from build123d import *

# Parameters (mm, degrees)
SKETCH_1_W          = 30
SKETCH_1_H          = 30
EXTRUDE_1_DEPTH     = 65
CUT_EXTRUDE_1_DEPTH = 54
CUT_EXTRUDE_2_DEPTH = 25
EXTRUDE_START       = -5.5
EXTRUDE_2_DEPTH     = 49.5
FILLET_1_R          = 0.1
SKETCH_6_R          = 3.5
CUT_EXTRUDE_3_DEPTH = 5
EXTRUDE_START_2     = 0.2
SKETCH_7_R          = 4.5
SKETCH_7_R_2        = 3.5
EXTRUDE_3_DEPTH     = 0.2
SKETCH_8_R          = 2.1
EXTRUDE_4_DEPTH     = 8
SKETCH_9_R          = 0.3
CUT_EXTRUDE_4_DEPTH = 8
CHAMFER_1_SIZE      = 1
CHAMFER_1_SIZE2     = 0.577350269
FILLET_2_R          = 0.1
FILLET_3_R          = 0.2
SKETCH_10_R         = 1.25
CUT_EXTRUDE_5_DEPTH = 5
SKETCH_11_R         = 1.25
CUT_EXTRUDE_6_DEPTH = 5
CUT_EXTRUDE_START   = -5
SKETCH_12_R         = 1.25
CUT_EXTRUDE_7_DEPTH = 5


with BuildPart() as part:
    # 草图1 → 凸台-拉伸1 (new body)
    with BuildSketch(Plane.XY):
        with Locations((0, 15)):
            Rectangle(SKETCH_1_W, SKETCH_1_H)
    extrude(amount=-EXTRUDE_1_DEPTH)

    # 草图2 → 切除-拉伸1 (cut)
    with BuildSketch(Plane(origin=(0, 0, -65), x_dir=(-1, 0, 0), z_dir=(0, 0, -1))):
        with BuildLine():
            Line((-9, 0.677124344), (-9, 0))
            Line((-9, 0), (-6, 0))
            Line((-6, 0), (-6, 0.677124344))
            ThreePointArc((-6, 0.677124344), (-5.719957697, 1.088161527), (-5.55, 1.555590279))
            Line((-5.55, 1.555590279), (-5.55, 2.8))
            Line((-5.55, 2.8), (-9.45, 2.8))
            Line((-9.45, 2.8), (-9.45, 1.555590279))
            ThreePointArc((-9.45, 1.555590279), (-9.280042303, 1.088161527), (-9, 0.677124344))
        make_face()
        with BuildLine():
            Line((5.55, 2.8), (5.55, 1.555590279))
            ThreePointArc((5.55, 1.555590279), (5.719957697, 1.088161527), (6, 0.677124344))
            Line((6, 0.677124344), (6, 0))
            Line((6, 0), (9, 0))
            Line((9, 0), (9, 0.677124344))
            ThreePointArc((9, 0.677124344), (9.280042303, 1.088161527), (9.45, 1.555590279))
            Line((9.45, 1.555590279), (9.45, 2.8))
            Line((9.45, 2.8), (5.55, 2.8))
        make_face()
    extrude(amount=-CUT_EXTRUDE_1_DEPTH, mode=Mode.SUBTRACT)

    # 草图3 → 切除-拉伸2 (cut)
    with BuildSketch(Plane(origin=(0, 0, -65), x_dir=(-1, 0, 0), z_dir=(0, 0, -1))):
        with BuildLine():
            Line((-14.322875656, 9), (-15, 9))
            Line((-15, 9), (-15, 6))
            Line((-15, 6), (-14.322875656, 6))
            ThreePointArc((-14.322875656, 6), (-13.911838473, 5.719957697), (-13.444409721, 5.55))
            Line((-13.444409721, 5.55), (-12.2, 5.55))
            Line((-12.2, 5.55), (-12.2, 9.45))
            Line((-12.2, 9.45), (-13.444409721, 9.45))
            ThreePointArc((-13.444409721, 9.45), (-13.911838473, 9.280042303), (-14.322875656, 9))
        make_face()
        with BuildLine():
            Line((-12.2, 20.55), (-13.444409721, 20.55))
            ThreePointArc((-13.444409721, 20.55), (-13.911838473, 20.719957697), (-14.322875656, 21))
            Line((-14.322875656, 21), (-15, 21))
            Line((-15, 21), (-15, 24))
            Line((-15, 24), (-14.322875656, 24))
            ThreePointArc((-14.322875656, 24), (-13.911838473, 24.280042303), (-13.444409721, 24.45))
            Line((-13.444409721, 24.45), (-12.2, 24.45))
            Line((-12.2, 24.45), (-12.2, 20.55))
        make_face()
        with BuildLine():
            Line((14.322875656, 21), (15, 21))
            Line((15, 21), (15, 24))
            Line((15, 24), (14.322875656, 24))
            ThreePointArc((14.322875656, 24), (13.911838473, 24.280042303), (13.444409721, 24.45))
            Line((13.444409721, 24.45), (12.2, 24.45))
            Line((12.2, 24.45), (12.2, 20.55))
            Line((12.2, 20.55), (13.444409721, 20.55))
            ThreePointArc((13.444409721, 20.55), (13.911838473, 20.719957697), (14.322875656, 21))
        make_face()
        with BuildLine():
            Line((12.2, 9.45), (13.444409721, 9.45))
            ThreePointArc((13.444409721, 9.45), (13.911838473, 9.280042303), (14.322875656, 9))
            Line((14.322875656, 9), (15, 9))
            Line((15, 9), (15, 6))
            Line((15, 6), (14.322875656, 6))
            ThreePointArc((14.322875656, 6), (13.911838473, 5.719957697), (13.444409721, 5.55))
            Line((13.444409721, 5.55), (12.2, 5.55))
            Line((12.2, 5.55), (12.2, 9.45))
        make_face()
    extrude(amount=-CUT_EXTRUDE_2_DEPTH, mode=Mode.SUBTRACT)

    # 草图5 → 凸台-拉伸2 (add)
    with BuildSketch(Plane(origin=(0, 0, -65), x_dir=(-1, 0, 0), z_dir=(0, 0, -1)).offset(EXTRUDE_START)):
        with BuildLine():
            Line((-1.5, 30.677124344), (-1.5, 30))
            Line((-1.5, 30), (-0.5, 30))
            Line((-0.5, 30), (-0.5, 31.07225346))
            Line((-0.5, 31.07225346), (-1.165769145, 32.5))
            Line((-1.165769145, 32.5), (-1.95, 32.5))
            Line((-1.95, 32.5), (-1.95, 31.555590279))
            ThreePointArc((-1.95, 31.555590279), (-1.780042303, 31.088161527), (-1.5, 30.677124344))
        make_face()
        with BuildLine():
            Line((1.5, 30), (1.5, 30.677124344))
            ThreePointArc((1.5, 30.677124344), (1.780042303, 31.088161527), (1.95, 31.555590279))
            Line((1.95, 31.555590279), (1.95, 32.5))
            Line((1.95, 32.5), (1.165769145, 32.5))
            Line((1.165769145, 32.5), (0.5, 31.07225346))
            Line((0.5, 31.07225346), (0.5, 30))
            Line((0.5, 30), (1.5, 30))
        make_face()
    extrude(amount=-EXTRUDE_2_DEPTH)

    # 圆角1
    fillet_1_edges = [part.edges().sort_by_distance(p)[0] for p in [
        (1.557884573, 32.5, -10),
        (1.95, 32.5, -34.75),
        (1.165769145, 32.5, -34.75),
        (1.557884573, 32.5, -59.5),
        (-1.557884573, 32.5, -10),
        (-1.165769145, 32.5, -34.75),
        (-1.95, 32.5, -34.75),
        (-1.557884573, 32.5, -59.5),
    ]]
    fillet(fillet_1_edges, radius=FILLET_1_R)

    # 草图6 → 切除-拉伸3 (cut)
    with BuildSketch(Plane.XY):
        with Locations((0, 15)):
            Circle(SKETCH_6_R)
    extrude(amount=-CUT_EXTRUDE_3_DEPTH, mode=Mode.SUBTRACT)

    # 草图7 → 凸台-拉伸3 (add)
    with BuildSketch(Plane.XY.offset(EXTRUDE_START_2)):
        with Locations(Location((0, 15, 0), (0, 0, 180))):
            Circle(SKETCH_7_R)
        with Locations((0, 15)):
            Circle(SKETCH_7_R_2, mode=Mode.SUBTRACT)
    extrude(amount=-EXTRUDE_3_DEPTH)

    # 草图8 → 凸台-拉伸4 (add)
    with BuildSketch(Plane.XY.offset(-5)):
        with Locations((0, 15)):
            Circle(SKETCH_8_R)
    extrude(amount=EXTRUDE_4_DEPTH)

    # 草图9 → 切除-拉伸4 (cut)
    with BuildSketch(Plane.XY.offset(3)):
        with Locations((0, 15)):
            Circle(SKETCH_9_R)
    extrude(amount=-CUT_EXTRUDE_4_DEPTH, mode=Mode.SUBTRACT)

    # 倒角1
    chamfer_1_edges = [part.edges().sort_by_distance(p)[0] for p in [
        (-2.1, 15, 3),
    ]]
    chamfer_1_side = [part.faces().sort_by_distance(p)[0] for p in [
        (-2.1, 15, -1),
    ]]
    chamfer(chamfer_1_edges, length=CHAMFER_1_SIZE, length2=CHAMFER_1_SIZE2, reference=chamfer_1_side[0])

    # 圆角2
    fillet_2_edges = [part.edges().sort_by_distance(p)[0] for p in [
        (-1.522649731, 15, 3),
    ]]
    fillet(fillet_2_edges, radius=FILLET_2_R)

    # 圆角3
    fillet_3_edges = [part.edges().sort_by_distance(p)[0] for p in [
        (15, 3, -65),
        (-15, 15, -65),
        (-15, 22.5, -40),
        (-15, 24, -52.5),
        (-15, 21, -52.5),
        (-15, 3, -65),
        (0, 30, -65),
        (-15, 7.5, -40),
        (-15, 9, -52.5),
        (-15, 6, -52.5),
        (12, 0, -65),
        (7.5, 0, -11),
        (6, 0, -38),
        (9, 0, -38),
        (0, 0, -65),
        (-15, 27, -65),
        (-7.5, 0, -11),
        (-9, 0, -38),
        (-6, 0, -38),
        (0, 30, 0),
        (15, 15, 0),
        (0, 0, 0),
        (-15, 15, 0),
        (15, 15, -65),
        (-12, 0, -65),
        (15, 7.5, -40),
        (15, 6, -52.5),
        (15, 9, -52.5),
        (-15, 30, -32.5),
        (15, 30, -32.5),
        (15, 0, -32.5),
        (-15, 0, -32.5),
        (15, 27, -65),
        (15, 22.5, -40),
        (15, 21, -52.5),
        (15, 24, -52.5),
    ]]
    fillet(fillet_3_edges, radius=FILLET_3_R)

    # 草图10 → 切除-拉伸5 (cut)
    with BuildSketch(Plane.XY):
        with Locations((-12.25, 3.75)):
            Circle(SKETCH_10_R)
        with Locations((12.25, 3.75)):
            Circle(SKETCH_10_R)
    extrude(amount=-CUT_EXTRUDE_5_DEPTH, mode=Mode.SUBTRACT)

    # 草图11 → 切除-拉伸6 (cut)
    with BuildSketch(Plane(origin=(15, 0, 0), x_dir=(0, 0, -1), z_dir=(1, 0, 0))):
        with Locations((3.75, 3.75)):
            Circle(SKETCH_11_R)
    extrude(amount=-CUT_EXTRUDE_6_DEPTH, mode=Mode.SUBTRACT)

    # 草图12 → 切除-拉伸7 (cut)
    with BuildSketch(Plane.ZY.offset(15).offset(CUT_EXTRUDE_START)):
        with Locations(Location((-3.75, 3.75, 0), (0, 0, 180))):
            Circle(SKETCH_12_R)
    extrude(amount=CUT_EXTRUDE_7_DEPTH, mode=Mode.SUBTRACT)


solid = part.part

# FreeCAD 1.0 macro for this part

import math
import FreeCAD as App
import Part
import Sketcher
Q = App.Units.Quantity


def edges_at(feature, points):
    """Names of the edges that pass closest to the given points."""
    edges = feature.Shape.Edges
    near = lambda p: min(range(len(edges)), key=lambda i: edges[i].distToShape(Part.Vertex(*p))[0])
    return sorted({f"Edge{near(p) + 1}" for p in points})


def add_polygon(sketch, points):
    """Adds a closed chain of lines whose ends are joined by coincident constraints."""
    first, n = sketch.GeometryCount, len(points)
    for a, b in zip(points, points[1:] + points[:1]):
        sketch.addGeometry(Part.LineSegment(App.Vector(*a, 0), App.Vector(*b, 0)), False)
    for i in range(n):
        sketch.addConstraint(Sketcher.Constraint("Coincident", first + i, 2, first + (i + 1) % n, 1))

doc = App.newDocument("Part")
body = doc.addObject("PartDesign::Body", "Body")

# Sketch on XY plane
sketch1 = doc.addObject("Sketcher::SketchObject", "Sketch")
body.addObject(sketch1)
sketch1.AttachmentSupport = (doc.XY_Plane, [""])
sketch1.MapMode = "FlatFace"
add_polygon(sketch1, [(-15, 30), (-15, 0), (15, 0), (15, 30)])  # lines 0-3
sketch1.addConstraint([
    Sketcher.Constraint("Vertical", 0),
    Sketcher.Constraint("Horizontal", 1),
    Sketcher.Constraint("Vertical", 2),
    Sketcher.Constraint("Horizontal", 3),
    Sketcher.Constraint("Symmetric", 0, 2, 1, 2, -1, 1),
    Sketcher.Constraint("Equal", 3, 0),
    Sketcher.Constraint("DistanceX", 1, 1, 1, 2, 30.0),
])
pad1 = doc.addObject("PartDesign::Pad", "Pad")
body.addObject(pad1)
pad1.Profile = sketch1
pad1.Length = 65
pad1.Reversed = True

# Sketch on XY plane
sketch2 = doc.addObject("Sketcher::SketchObject", "Sketch001")
body.addObject(sketch2)
sketch2.AttachmentSupport = (doc.XY_Plane, [""])
sketch2.MapMode = "FlatFace"
sketch2.AttachmentOffset = App.Placement(App.Vector(0, 0, -65), App.Rotation())
sketch2.addGeometry([
    Part.LineSegment(App.Vector(9, 0.677124, 0), App.Vector(9, 0, 0)),  # 0
    Part.LineSegment(App.Vector(9, 0, 0), App.Vector(6, 0, 0)),  # 1
    Part.LineSegment(App.Vector(6, 0, 0), App.Vector(6, 0.677124, 0)),  # 2
    Part.ArcOfCircle(Part.Circle(App.Vector(7.5, 2, 0), App.Vector(0, 0, 1), 2), math.radians(-167.161432), math.radians(-138.590378)),  # 3
    Part.LineSegment(App.Vector(5.55, 1.55559, 0), App.Vector(5.55, 2.8, 0)),  # 4
    Part.LineSegment(App.Vector(5.55, 2.8, 0), App.Vector(9.45, 2.8, 0)),  # 5
    Part.LineSegment(App.Vector(9.45, 2.8, 0), App.Vector(9.45, 1.55559, 0)),  # 6
    Part.ArcOfCircle(Part.Circle(App.Vector(7.5, 2, 0), App.Vector(0, 0, 1), 2), math.radians(-41.409622), math.radians(-12.838568)),  # 7
    Part.LineSegment(App.Vector(-5.55, 2.8, 0), App.Vector(-5.55, 1.55559, 0)),  # 8
    Part.ArcOfCircle(Part.Circle(App.Vector(-7.5, 2, 0), App.Vector(0, 0, 1), 2), math.radians(-41.409622), math.radians(-12.838568)),  # 9
    Part.LineSegment(App.Vector(-6, 0.677124, 0), App.Vector(-6, 0, 0)),  # 10
    Part.LineSegment(App.Vector(-6, 0, 0), App.Vector(-9, 0, 0)),  # 11
    Part.LineSegment(App.Vector(-9, 0, 0), App.Vector(-9, 0.677124, 0)),  # 12
    Part.ArcOfCircle(Part.Circle(App.Vector(-7.5, 2, 0), App.Vector(0, 0, 1), 2), math.radians(-167.161432), math.radians(-138.590378)),  # 13
    Part.LineSegment(App.Vector(-9.45, 1.55559, 0), App.Vector(-9.45, 2.8, 0)),  # 14
    Part.LineSegment(App.Vector(-9.45, 2.8, 0), App.Vector(-5.55, 2.8, 0)),  # 15
], False)
sketch2.addConstraint([
    Sketcher.Constraint("Coincident", 0, 2, 1, 1),
    Sketcher.Constraint("Coincident", 1, 2, 2, 1),
    Sketcher.Constraint("Coincident", 2, 2, 3, 2),
    Sketcher.Constraint("Coincident", 3, 1, 4, 1),
    Sketcher.Constraint("Coincident", 4, 2, 5, 1),
    Sketcher.Constraint("Coincident", 5, 2, 6, 1),
    Sketcher.Constraint("Coincident", 6, 2, 7, 2),
    Sketcher.Constraint("Coincident", 7, 1, 0, 1),
    Sketcher.Constraint("Coincident", 8, 2, 9, 2),
    Sketcher.Constraint("Coincident", 9, 1, 10, 1),
    Sketcher.Constraint("Coincident", 10, 2, 11, 1),
    Sketcher.Constraint("Coincident", 11, 2, 12, 1),
    Sketcher.Constraint("Coincident", 12, 2, 13, 2),
    Sketcher.Constraint("Coincident", 13, 1, 14, 1),
    Sketcher.Constraint("Coincident", 14, 2, 15, 1),
    Sketcher.Constraint("Coincident", 15, 2, 8, 1),
    Sketcher.Constraint("Vertical", 0),
    Sketcher.Constraint("Horizontal", 1),
    Sketcher.Constraint("Vertical", 2),
    Sketcher.Constraint("Vertical", 4),
    Sketcher.Constraint("Horizontal", 5),
    Sketcher.Constraint("Vertical", 6),
    Sketcher.Constraint("Vertical", 8),
    Sketcher.Constraint("Vertical", 10),
    Sketcher.Constraint("Horizontal", 11),
    Sketcher.Constraint("Vertical", 12),
    Sketcher.Constraint("Vertical", 14),
    Sketcher.Constraint("Horizontal", 15),
    Sketcher.Constraint("Coincident", 7, 3, 3, 3),
    Sketcher.Constraint("Coincident", 13, 3, 9, 3),
    Sketcher.Constraint("Equal", 3, 7),
    Sketcher.Constraint("Equal", 7, 9),
    Sketcher.Constraint("Equal", 9, 13),
    Sketcher.Constraint("Symmetric", 1, 2, 10, 2, -1, 1),
    Sketcher.Constraint("Symmetric", 3, 3, 9, 3, -2),
    Sketcher.Constraint("Symmetric", 0, 2, 11, 2, -2),
    Sketcher.Constraint("Symmetric", 5, 2, 14, 2, -2),
    Sketcher.Constraint("Horizontal", 3, 1, 6, 2),
    Sketcher.Constraint("Horizontal", 2, 2, 7, 1),
    Sketcher.Constraint("Horizontal", 6, 2, 8, 2),
    Sketcher.Constraint("Radius", 3, 2.0),
    Sketcher.Constraint("DistanceX", 1, 2, 1, 1, 3.0),
    Sketcher.Constraint("DistanceX", 5, 1, 5, 2, 3.9),
    Sketcher.Constraint("DistanceY", -1, 1, 3, 3, 2.0),
    Sketcher.Constraint("DistanceX", -1, 1, 0, 2, 9.0),
    Sketcher.Constraint("DistanceY", -1, 1, 4, 2, 2.8),
])
pocket1 = doc.addObject("PartDesign::Pocket", "Pocket")
body.addObject(pocket1)
pocket1.Profile = sketch2
pocket1.Length = 54
pocket1.Reversed = True

# Sketch on XY plane
sketch3 = doc.addObject("Sketcher::SketchObject", "Sketch002")
body.addObject(sketch3)
sketch3.AttachmentSupport = (doc.XY_Plane, [""])
sketch3.MapMode = "FlatFace"
sketch3.AttachmentOffset = App.Placement(App.Vector(0, 0, -65), App.Rotation())
sketch3.addGeometry([
    Part.LineSegment(App.Vector(14.322876, 9, 0), App.Vector(15, 9, 0)),  # 0
    Part.LineSegment(App.Vector(15, 9, 0), App.Vector(15, 6, 0)),  # 1
    Part.LineSegment(App.Vector(15, 6, 0), App.Vector(14.322876, 6, 0)),  # 2
    Part.ArcOfCircle(Part.Circle(App.Vector(13, 7.5, 0), App.Vector(0, 0, 1), 2), math.radians(-77.161432), math.radians(-48.590378)),  # 3
    Part.LineSegment(App.Vector(13.44441, 5.55, 0), App.Vector(12.2, 5.55, 0)),  # 4
    Part.LineSegment(App.Vector(12.2, 5.55, 0), App.Vector(12.2, 9.45, 0)),  # 5
    Part.LineSegment(App.Vector(12.2, 9.45, 0), App.Vector(13.44441, 9.45, 0)),  # 6
    Part.ArcOfCircle(Part.Circle(App.Vector(13, 7.5, 0), App.Vector(0, 0, 1), 2), math.radians(48.590378), math.radians(77.161432)),  # 7
    Part.LineSegment(App.Vector(13.44441, 20.55, 0), App.Vector(12.2, 20.55, 0)),  # 8
    Part.LineSegment(App.Vector(12.2, 20.55, 0), App.Vector(12.2, 24.45, 0)),  # 9
    Part.LineSegment(App.Vector(12.2, 24.45, 0), App.Vector(13.44441, 24.45, 0)),  # 10
    Part.ArcOfCircle(Part.Circle(App.Vector(13, 22.5, 0), App.Vector(0, 0, 1), 2), math.radians(48.590378), math.radians(77.161432)),  # 11
    Part.LineSegment(App.Vector(14.322876, 24, 0), App.Vector(15, 24, 0)),  # 12
    Part.LineSegment(App.Vector(15, 24, 0), App.Vector(15, 21, 0)),  # 13
    Part.LineSegment(App.Vector(15, 21, 0), App.Vector(14.322876, 21, 0)),  # 14
    Part.ArcOfCircle(Part.Circle(App.Vector(13, 22.5, 0), App.Vector(0, 0, 1), 2), math.radians(-77.161432), math.radians(-48.590378)),  # 15
    Part.LineSegment(App.Vector(-14.322876, 21, 0), App.Vector(-15, 21, 0)),  # 16
    Part.LineSegment(App.Vector(-15, 21, 0), App.Vector(-15, 24, 0)),  # 17
    Part.LineSegment(App.Vector(-15, 24, 0), App.Vector(-14.322876, 24, 0)),  # 18
    Part.ArcOfCircle(Part.Circle(App.Vector(-13, 22.5, 0), App.Vector(0, 0, 1), 2), math.radians(102.838568), math.radians(131.409622)),  # 19
    Part.LineSegment(App.Vector(-13.44441, 24.45, 0), App.Vector(-12.2, 24.45, 0)),  # 20
    Part.LineSegment(App.Vector(-12.2, 24.45, 0), App.Vector(-12.2, 20.55, 0)),  # 21
    Part.LineSegment(App.Vector(-12.2, 20.55, 0), App.Vector(-13.44441, 20.55, 0)),  # 22
    Part.ArcOfCircle(Part.Circle(App.Vector(-13, 22.5, 0), App.Vector(0, 0, 1), 2), math.radians(-131.409622), math.radians(-102.838568)),  # 23
    Part.LineSegment(App.Vector(-13.44441, 9.45, 0), App.Vector(-12.2, 9.45, 0)),  # 24
    Part.LineSegment(App.Vector(-12.2, 9.45, 0), App.Vector(-12.2, 5.55, 0)),  # 25
    Part.LineSegment(App.Vector(-12.2, 5.55, 0), App.Vector(-13.44441, 5.55, 0)),  # 26
    Part.ArcOfCircle(Part.Circle(App.Vector(-13, 7.5, 0), App.Vector(0, 0, 1), 2), math.radians(-131.409622), math.radians(-102.838568)),  # 27
    Part.LineSegment(App.Vector(-14.322876, 6, 0), App.Vector(-15, 6, 0)),  # 28
    Part.LineSegment(App.Vector(-15, 6, 0), App.Vector(-15, 9, 0)),  # 29
    Part.LineSegment(App.Vector(-15, 9, 0), App.Vector(-14.322876, 9, 0)),  # 30
    Part.ArcOfCircle(Part.Circle(App.Vector(-13, 7.5, 0), App.Vector(0, 0, 1), 2), math.radians(102.838568), math.radians(131.409622)),  # 31
], False)
sketch3.addConstraint([
    Sketcher.Constraint("Coincident", 0, 2, 1, 1),
    Sketcher.Constraint("Coincident", 1, 2, 2, 1),
    Sketcher.Constraint("Coincident", 2, 2, 3, 2),
    Sketcher.Constraint("Coincident", 3, 1, 4, 1),
    Sketcher.Constraint("Coincident", 4, 2, 5, 1),
    Sketcher.Constraint("Coincident", 5, 2, 6, 1),
    Sketcher.Constraint("Coincident", 6, 2, 7, 2),
    Sketcher.Constraint("Coincident", 7, 1, 0, 1),
    Sketcher.Constraint("Coincident", 8, 2, 9, 1),
    Sketcher.Constraint("Coincident", 9, 2, 10, 1),
    Sketcher.Constraint("Coincident", 10, 2, 11, 2),
    Sketcher.Constraint("Coincident", 11, 1, 12, 1),
    Sketcher.Constraint("Coincident", 12, 2, 13, 1),
    Sketcher.Constraint("Coincident", 13, 2, 14, 1),
    Sketcher.Constraint("Coincident", 14, 2, 15, 2),
    Sketcher.Constraint("Coincident", 15, 1, 8, 1),
    Sketcher.Constraint("Coincident", 16, 2, 17, 1),
    Sketcher.Constraint("Coincident", 17, 2, 18, 1),
    Sketcher.Constraint("Coincident", 18, 2, 19, 2),
    Sketcher.Constraint("Coincident", 19, 1, 20, 1),
    Sketcher.Constraint("Coincident", 20, 2, 21, 1),
    Sketcher.Constraint("Coincident", 21, 2, 22, 1),
    Sketcher.Constraint("Coincident", 22, 2, 23, 2),
    Sketcher.Constraint("Coincident", 23, 1, 16, 1),
    Sketcher.Constraint("Coincident", 24, 2, 25, 1),
    Sketcher.Constraint("Coincident", 25, 2, 26, 1),
    Sketcher.Constraint("Coincident", 26, 2, 27, 2),
    Sketcher.Constraint("Coincident", 27, 1, 28, 1),
    Sketcher.Constraint("Coincident", 28, 2, 29, 1),
    Sketcher.Constraint("Coincident", 29, 2, 30, 1),
    Sketcher.Constraint("Coincident", 30, 2, 31, 2),
    Sketcher.Constraint("Coincident", 31, 1, 24, 1),
    Sketcher.Constraint("Horizontal", 0),
    Sketcher.Constraint("Vertical", 1),
    Sketcher.Constraint("Horizontal", 2),
    Sketcher.Constraint("Horizontal", 4),
    Sketcher.Constraint("Vertical", 5),
    Sketcher.Constraint("Horizontal", 6),
    Sketcher.Constraint("Horizontal", 8),
    Sketcher.Constraint("Vertical", 9),
    Sketcher.Constraint("Horizontal", 10),
    Sketcher.Constraint("Horizontal", 12),
    Sketcher.Constraint("Vertical", 13),
    Sketcher.Constraint("Horizontal", 14),
    Sketcher.Constraint("Horizontal", 16),
    Sketcher.Constraint("Vertical", 17),
    Sketcher.Constraint("Horizontal", 18),
    Sketcher.Constraint("Horizontal", 20),
    Sketcher.Constraint("Vertical", 21),
    Sketcher.Constraint("Horizontal", 22),
    Sketcher.Constraint("Horizontal", 24),
    Sketcher.Constraint("Vertical", 25),
    Sketcher.Constraint("Horizontal", 26),
    Sketcher.Constraint("Horizontal", 28),
    Sketcher.Constraint("Vertical", 29),
    Sketcher.Constraint("Horizontal", 30),
    Sketcher.Constraint("Coincident", 7, 3, 3, 3),
    Sketcher.Constraint("Coincident", 15, 3, 11, 3),
    Sketcher.Constraint("Coincident", 23, 3, 19, 3),
    Sketcher.Constraint("Coincident", 31, 3, 27, 3),
    Sketcher.Constraint("Equal", 3, 7),
    Sketcher.Constraint("Equal", 7, 11),
    Sketcher.Constraint("Equal", 11, 15),
    Sketcher.Constraint("Equal", 15, 19),
    Sketcher.Constraint("Equal", 19, 23),
    Sketcher.Constraint("Equal", 23, 27),
    Sketcher.Constraint("Equal", 27, 31),
    Sketcher.Constraint("Symmetric", 11, 3, 19, 3, -2),
    Sketcher.Constraint("Symmetric", 3, 3, 27, 3, -2),
    Sketcher.Constraint("Symmetric", 13, 2, 16, 2, -2),
    Sketcher.Constraint("Symmetric", 9, 2, 20, 2, -2),
    Sketcher.Constraint("Symmetric", 5, 2, 24, 2, -2),
    Sketcher.Constraint("Symmetric", 1, 2, 28, 2, -2),
    Sketcher.Constraint("Horizontal", 12, 2, 17, 2),
    Sketcher.Constraint("Horizontal", 15, 1, 21, 2),
    Sketcher.Constraint("Horizontal", 4, 2, 25, 2),
    Sketcher.Constraint("Horizontal", 7, 1, 29, 2),
    Sketcher.Constraint("Vertical", 7, 3, 11, 3),
    Sketcher.Constraint("Vertical", 3, 1, 6, 2),
    Sketcher.Constraint("Vertical", 2, 2, 7, 1),
    Sketcher.Constraint("Vertical", 5, 2, 8, 2),
    Sketcher.Constraint("Vertical", 6, 2, 10, 2),
    Sketcher.Constraint("Vertical", 7, 1, 11, 1),
    Sketcher.Constraint("Vertical", 1, 2, 12, 2),
    Sketcher.Constraint("Vertical", 11, 1, 14, 2),
    Sketcher.Constraint("Vertical", 10, 2, 15, 1),
    Sketcher.Constraint("Radius", 3, 2.0),
    Sketcher.Constraint("DistanceY", 1, 2, 1, 1, 3.0),
    Sketcher.Constraint("DistanceY", 5, 1, 5, 2, 3.9),
    Sketcher.Constraint("DistanceX", -1, 1, 3, 3, 13.0),
    Sketcher.Constraint("DistanceX", -1, 1, 0, 2, 15.0),
    Sketcher.Constraint("DistanceY", -1, 1, 0, 2, 9.0),
    Sketcher.Constraint("DistanceY", -1, 1, 11, 1, 24.0),
    Sketcher.Constraint("DistanceX", -1, 1, 4, 2, 12.2),
])
pocket2 = doc.addObject("PartDesign::Pocket", "Pocket001")
body.addObject(pocket2)
pocket2.Profile = sketch3
pocket2.Length = 25
pocket2.Reversed = True

# Sketch on XY plane
sketch4 = doc.addObject("Sketcher::SketchObject", "Sketch003")
body.addObject(sketch4)
sketch4.AttachmentSupport = (doc.XY_Plane, [""])
sketch4.MapMode = "FlatFace"
sketch4.AttachmentOffset = App.Placement(App.Vector(0, 0, -59.5), App.Rotation())
sketch4.addGeometry([
    Part.LineSegment(App.Vector(1.5, 30.677124, 0), App.Vector(1.5, 30, 0)),  # 0
    Part.LineSegment(App.Vector(1.5, 30, 0), App.Vector(0.5, 30, 0)),  # 1
    Part.LineSegment(App.Vector(0.5, 30, 0), App.Vector(0.5, 31.072253, 0)),  # 2
    Part.LineSegment(App.Vector(0.5, 31.072253, 0), App.Vector(1.165769, 32.5, 0)),  # 3
    Part.LineSegment(App.Vector(1.165769, 32.5, 0), App.Vector(1.95, 32.5, 0)),  # 4
    Part.LineSegment(App.Vector(1.95, 32.5, 0), App.Vector(1.95, 31.55559, 0)),  # 5
    Part.ArcOfCircle(Part.Circle(App.Vector(0, 32, 0), App.Vector(0, 0, 1), 2), math.radians(-41.409622), math.radians(-12.838568)),  # 6
    Part.LineSegment(App.Vector(-1.5, 30, 0), App.Vector(-1.5, 30.677124, 0)),  # 7
    Part.ArcOfCircle(Part.Circle(App.Vector(0, 32, 0), App.Vector(0, 0, 1), 2), math.radians(-167.161432), math.radians(-138.590378)),  # 8
    Part.LineSegment(App.Vector(-1.95, 31.55559, 0), App.Vector(-1.95, 32.5, 0)),  # 9
    Part.LineSegment(App.Vector(-1.95, 32.5, 0), App.Vector(-1.165769, 32.5, 0)),  # 10
    Part.LineSegment(App.Vector(-1.165769, 32.5, 0), App.Vector(-0.5, 31.072253, 0)),  # 11
    Part.LineSegment(App.Vector(-0.5, 31.072253, 0), App.Vector(-0.5, 30, 0)),  # 12
    Part.LineSegment(App.Vector(-0.5, 30, 0), App.Vector(-1.5, 30, 0)),  # 13
], False)
sketch4.addConstraint([
    Sketcher.Constraint("Coincident", 0, 2, 1, 1),
    Sketcher.Constraint("Coincident", 1, 2, 2, 1),
    Sketcher.Constraint("Coincident", 2, 2, 3, 1),
    Sketcher.Constraint("Coincident", 3, 2, 4, 1),
    Sketcher.Constraint("Coincident", 4, 2, 5, 1),
    Sketcher.Constraint("Coincident", 5, 2, 6, 2),
    Sketcher.Constraint("Coincident", 6, 1, 0, 1),
    Sketcher.Constraint("Coincident", 7, 2, 8, 2),
    Sketcher.Constraint("Coincident", 8, 1, 9, 1),
    Sketcher.Constraint("Coincident", 9, 2, 10, 1),
    Sketcher.Constraint("Coincident", 10, 2, 11, 1),
    Sketcher.Constraint("Coincident", 11, 2, 12, 1),
    Sketcher.Constraint("Coincident", 12, 2, 13, 1),
    Sketcher.Constraint("Coincident", 13, 2, 7, 1),
    Sketcher.Constraint("Vertical", 0),
    Sketcher.Constraint("Horizontal", 1),
    Sketcher.Constraint("Vertical", 2),
    Sketcher.Constraint("Horizontal", 4),
    Sketcher.Constraint("Vertical", 5),
    Sketcher.Constraint("Vertical", 7),
    Sketcher.Constraint("Vertical", 9),
    Sketcher.Constraint("Horizontal", 10),
    Sketcher.Constraint("Vertical", 12),
    Sketcher.Constraint("Horizontal", 13),
    Sketcher.Constraint("Coincident", 8, 3, 6, 3),
    Sketcher.Constraint("Equal", 6, 8),
    Sketcher.Constraint("Symmetric", 6, 1, 7, 2, -2),
    Sketcher.Constraint("Symmetric", 4, 2, 9, 2, -2),
    Sketcher.Constraint("Symmetric", 2, 2, 11, 2, -2),
    Sketcher.Constraint("Horizontal", 1, 2, 12, 2),
    Sketcher.Constraint("Equal", 4, 10),
    Sketcher.Constraint("Radius", 6, 2.0),
    Sketcher.Constraint("DistanceX", 1, 2, 1, 1, 1.0),
    Sketcher.Constraint("Angle", 3, Q("65 deg")),
    Sketcher.Constraint("DistanceY", -1, 1, 6, 3, 32.0),
    Sketcher.Constraint("DistanceY", -1, 1, 0, 2, 30.0),
    Sketcher.Constraint("DistanceX", 7, 2, 2, 2, 2.0),
    Sketcher.Constraint("DistanceY", -1, 1, 3, 2, 32.5),
    Sketcher.Constraint("DistanceX", -1, 1, 4, 2, 1.95),
    Sketcher.Constraint("DistanceX", 4, 1, 4, 2, 0.784231),
])
pad2 = doc.addObject("PartDesign::Pad", "Pad001")
body.addObject(pad2)
pad2.Profile = sketch4
pad2.Length = 49.5
doc.recompute()

fillet = doc.addObject("PartDesign::Fillet", "Fillet")
body.addObject(fillet)
fillet.Base = (pad2, edges_at(pad2, [
    (1.558, 32.5, -10),
    (1.95, 32.5, -34.75),
    (1.166, 32.5, -34.75),
    (1.558, 32.5, -59.5),
    (-1.558, 32.5, -10),
    (-1.166, 32.5, -34.75),
    (-1.95, 32.5, -34.75),
    (-1.558, 32.5, -59.5),
]))
fillet.Radius = 0.1

# Sketch on XY plane
sketch5 = doc.addObject("Sketcher::SketchObject", "Sketch004")
body.addObject(sketch5)
sketch5.AttachmentSupport = (doc.XY_Plane, [""])
sketch5.MapMode = "FlatFace"
sketch5.addGeometry(Part.Circle(App.Vector(0, 15, 0), App.Vector(0, 0, 1), 3.5), False)
sketch5.addConstraint([
    Sketcher.Constraint("PointOnObject", 0, 3, -2),
    Sketcher.Constraint("Diameter", 0, 7.0),
    Sketcher.Constraint("DistanceY", -1, 1, 0, 3, 15.0),
])
pocket3 = doc.addObject("PartDesign::Pocket", "Pocket002")
body.addObject(pocket3)
pocket3.Profile = sketch5
pocket3.Length = 5

# Sketch on XY plane
sketch6 = doc.addObject("Sketcher::SketchObject", "Sketch005")
body.addObject(sketch6)
sketch6.AttachmentSupport = (doc.XY_Plane, [""])
sketch6.MapMode = "FlatFace"
sketch6.AttachmentOffset = App.Placement(App.Vector(0, 0, 0.2), App.Rotation())
sketch6.addGeometry([
    Part.Circle(App.Vector(0, 15, 0), App.Vector(0, 0, 1), 4.5),
    Part.Circle(App.Vector(0, 15, 0), App.Vector(0, 0, 1), 3.5),
], False)
sketch6.addConstraint([
    Sketcher.Constraint("Coincident", 1, 3, 0, 3),
    Sketcher.Constraint("PointOnObject", 0, 3, -2),
    Sketcher.Constraint("Diameter", 0, 9.0),
    Sketcher.Constraint("Diameter", 1, 7.0),
    Sketcher.Constraint("DistanceY", -1, 1, 0, 3, 15.0),
])
pad3 = doc.addObject("PartDesign::Pad", "Pad002")
body.addObject(pad3)
pad3.Profile = sketch6
pad3.Length = 0.2
pad3.Reversed = True

# Sketch on XY plane
sketch7 = doc.addObject("Sketcher::SketchObject", "Sketch006")
body.addObject(sketch7)
sketch7.AttachmentSupport = (doc.XY_Plane, [""])
sketch7.MapMode = "FlatFace"
sketch7.AttachmentOffset = App.Placement(App.Vector(0, 0, -5), App.Rotation())
sketch7.addGeometry(Part.Circle(App.Vector(0, 15, 0), App.Vector(0, 0, 1), 2.1), False)
sketch7.addConstraint([
    Sketcher.Constraint("PointOnObject", 0, 3, -2),
    Sketcher.Constraint("Diameter", 0, 4.2),
    Sketcher.Constraint("DistanceY", -1, 1, 0, 3, 15.0),
])
pad4 = doc.addObject("PartDesign::Pad", "Pad003")
body.addObject(pad4)
pad4.Profile = sketch7
pad4.Length = 8

# Sketch on XY plane
sketch8 = doc.addObject("Sketcher::SketchObject", "Sketch007")
body.addObject(sketch8)
sketch8.AttachmentSupport = (doc.XY_Plane, [""])
sketch8.MapMode = "FlatFace"
sketch8.AttachmentOffset = App.Placement(App.Vector(0, 0, 3), App.Rotation())
sketch8.addGeometry(Part.Circle(App.Vector(0, 15, 0), App.Vector(0, 0, 1), 0.3), False)
sketch8.addConstraint([
    Sketcher.Constraint("PointOnObject", 0, 3, -2),
    Sketcher.Constraint("Diameter", 0, 0.6),
    Sketcher.Constraint("DistanceY", -1, 1, 0, 3, 15.0),
])
pocket4 = doc.addObject("PartDesign::Pocket", "Pocket003")
body.addObject(pocket4)
pocket4.Profile = sketch8
pocket4.Length = 8
doc.recompute()

chamfer = doc.addObject("PartDesign::Chamfer", "Chamfer")
body.addObject(chamfer)
chamfer.Base = (pocket4, edges_at(pocket4, [(-2.1, 15, 3)]))
chamfer.ChamferType = "Two distances"
chamfer.Size = 1
chamfer.Size2 = 0.57735
doc.recompute()

fillet2 = doc.addObject("PartDesign::Fillet", "Fillet001")
body.addObject(fillet2)
fillet2.Base = (chamfer, edges_at(chamfer, [(-1.523, 15, 3)]))
fillet2.Radius = 0.1
doc.recompute()

fillet3 = doc.addObject("PartDesign::Fillet", "Fillet002")
body.addObject(fillet3)
fillet3.Base = (fillet2, edges_at(fillet2, [
    (15, 3, -65),
    (-15, 15, -65),
    (-15, 22.5, -40),
    (-15, 24, -52.5),
    (-15, 21, -52.5),
    (-15, 3, -65),
    (0, 30, -65),
    (-15, 7.5, -40),
    (-15, 9, -52.5),
    (-15, 6, -52.5),
    (12, 0, -65),
    (7.5, 0, -11),
    (6, 0, -38),
    (9, 0, -38),
    (0, 0, -65),
    (-15, 27, -65),
    (-7.5, 0, -11),
    (-9, 0, -38),
    (-6, 0, -38),
    (0, 30, 0),
    (15, 15, 0),
    (0, 0, 0),
    (-15, 15, 0),
    (15, 15, -65),
    (-12, 0, -65),
    (15, 7.5, -40),
    (15, 6, -52.5),
    (15, 9, -52.5),
    (-15, 30, -32.5),
    (15, 30, -32.5),
    (15, 0, -32.5),
    (-15, 0, -32.5),
    (15, 27, -65),
    (15, 22.5, -40),
    (15, 21, -52.5),
    (15, 24, -52.5),
]))
fillet3.Radius = 0.2

# Sketch on XY plane
sketch9 = doc.addObject("Sketcher::SketchObject", "Sketch008")
body.addObject(sketch9)
sketch9.AttachmentSupport = (doc.XY_Plane, [""])
sketch9.MapMode = "FlatFace"
sketch9.addGeometry([
    Part.Circle(App.Vector(-12.25, 3.75, 0), App.Vector(0, 0, 1), 1.25),
    Part.Circle(App.Vector(12.25, 3.75, 0), App.Vector(0, 0, 1), 1.25),
], False)
sketch9.addConstraint([
    Sketcher.Constraint("Equal", 0, 1),
    Sketcher.Constraint("Symmetric", 0, 3, 1, 3, -2),
    Sketcher.Constraint("Diameter", 0, 2.5),
    Sketcher.Constraint("DistanceX", 0, 3, 1, 3, 24.5),
    Sketcher.Constraint("DistanceY", -1, 1, 0, 3, 3.75),
])
pocket5 = doc.addObject("PartDesign::Pocket", "Pocket004")
body.addObject(pocket5)
pocket5.Profile = sketch9
pocket5.Length = 5

# Sketch on YZ plane
sketch10 = doc.addObject("Sketcher::SketchObject", "Sketch009")
body.addObject(sketch10)
sketch10.AttachmentSupport = (doc.YZ_Plane, [""])
sketch10.MapMode = "FlatFace"
sketch10.AttachmentOffset = App.Placement(App.Vector(0, 0, 15), App.Rotation())
sketch10.addGeometry(Part.Circle(App.Vector(3.75, -3.75, 0), App.Vector(0, 0, 1), 1.25), False)
sketch10.addConstraint([
    Sketcher.Constraint("Diameter", 0, 2.5),
    Sketcher.Constraint("DistanceX", -1, 1, 0, 3, 3.75),
    Sketcher.Constraint("DistanceY", 0, 3, -1, 1, 3.75),
])
pocket6 = doc.addObject("PartDesign::Pocket", "Pocket005")
body.addObject(pocket6)
pocket6.Profile = sketch10
pocket6.Length = 5

# Sketch on YZ plane
sketch11 = doc.addObject("Sketcher::SketchObject", "Sketch010")
body.addObject(sketch11)
sketch11.AttachmentSupport = (doc.YZ_Plane, [""])
sketch11.MapMode = "FlatFace"
sketch11.AttachmentOffset = App.Placement(App.Vector(0, 0, -10), App.Rotation())
sketch11.addGeometry(Part.Circle(App.Vector(3.75, -3.75, 0), App.Vector(0, 0, 1), 1.25), False)
sketch11.addConstraint([
    Sketcher.Constraint("Diameter", 0, 2.5),
    Sketcher.Constraint("DistanceX", -1, 1, 0, 3, 3.75),
    Sketcher.Constraint("DistanceY", 0, 3, -1, 1, 3.75),
])
pocket7 = doc.addObject("PartDesign::Pocket", "Pocket006")
body.addObject(pocket7)
pocket7.Profile = sketch11
pocket7.Length = 5

doc.recompute()
